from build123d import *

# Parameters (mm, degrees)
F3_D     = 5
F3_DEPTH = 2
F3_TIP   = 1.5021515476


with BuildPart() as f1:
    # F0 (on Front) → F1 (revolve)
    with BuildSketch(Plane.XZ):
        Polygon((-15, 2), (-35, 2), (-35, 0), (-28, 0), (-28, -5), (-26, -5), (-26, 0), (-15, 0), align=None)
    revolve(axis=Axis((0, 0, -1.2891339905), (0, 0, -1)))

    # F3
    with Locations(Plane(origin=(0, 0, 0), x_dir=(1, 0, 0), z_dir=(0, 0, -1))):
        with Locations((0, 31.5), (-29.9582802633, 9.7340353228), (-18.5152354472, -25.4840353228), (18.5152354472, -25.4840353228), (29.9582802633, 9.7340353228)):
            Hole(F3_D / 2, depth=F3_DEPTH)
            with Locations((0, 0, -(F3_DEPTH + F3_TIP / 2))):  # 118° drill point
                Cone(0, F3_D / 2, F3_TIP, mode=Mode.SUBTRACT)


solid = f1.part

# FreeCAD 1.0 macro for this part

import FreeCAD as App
import Part
import Sketcher
from FreeCAD import Vector
Q = App.Units.Quantity

doc = App.newDocument("Part")
body = doc.addObject("PartDesign::Body", "Body")

sketch1 = doc.addObject("Sketcher::SketchObject", "Sketch")
body.addObject(sketch1)
sketch1.AttachmentSupport = (doc.XZ_Plane, [""])
sketch1.MapMode = "FlatFace"
sketch1.addGeometry([
    Part.LineSegment(Vector(-15, 2, 0), Vector(-35, 2, 0)),
    Part.LineSegment(Vector(-35, 2, 0), Vector(-35, 0, 0)),
    Part.LineSegment(Vector(-35, 0, 0), Vector(-28, 0, 0)),
    Part.LineSegment(Vector(-28, 0, 0), Vector(-28, -5, 0)),
    Part.LineSegment(Vector(-28, -5, 0), Vector(-26, -5, 0)),
    Part.LineSegment(Vector(-26, -5, 0), Vector(-26, 0, 0)),
    Part.LineSegment(Vector(-26, 0, 0), Vector(-15, 0, 0)),
    Part.LineSegment(Vector(-15, 0, 0), Vector(-15, 2, 0)),
], False)
sketch1.addConstraint([
    Sketcher.Constraint("Coincident", 0, 2, 1, 1),
    Sketcher.Constraint("Coincident", 1, 2, 2, 1),
    Sketcher.Constraint("Coincident", 2, 2, 3, 1),
    Sketcher.Constraint("Coincident", 3, 2, 4, 1),
    Sketcher.Constraint("Coincident", 4, 2, 5, 1),
    Sketcher.Constraint("Coincident", 5, 2, 6, 1),
    Sketcher.Constraint("Coincident", 6, 2, 7, 1),
    Sketcher.Constraint("Coincident", 7, 2, 0, 1),
    Sketcher.Constraint("Horizontal", 0),
    Sketcher.Constraint("Vertical", 1),
    Sketcher.Constraint("Horizontal", 2),
    Sketcher.Constraint("Vertical", 3),
    Sketcher.Constraint("Horizontal", 4),
    Sketcher.Constraint("Vertical", 5),
    Sketcher.Constraint("Horizontal", 6),
    Sketcher.Constraint("Vertical", 7),
    Sketcher.Constraint("PointOnObject", 1, 2, -1),
    Sketcher.Constraint("PointOnObject", 5, 2, -1),
    Sketcher.Constraint("Equal", 4, 1),
    Sketcher.Constraint("DistanceX", 0, 2, 0, 1, Q("20 mm")),
    Sketcher.Constraint("DistanceX", 2, 1, 2, 2, Q("7 mm")),
    Sketcher.Constraint("DistanceX", 4, 1, 4, 2, Q("2 mm")),
    Sketcher.Constraint("DistanceY", 3, 2, 3, 1, Q("5 mm")),
    Sketcher.Constraint("DistanceX", 0, 2, -1, 1, Q("35 mm")),
])
revolution = doc.addObject("PartDesign::Revolution", "Revolution")
body.addObject(revolution)
revolution.Profile = sketch1
revolution.ReferenceAxis = (sketch1, ["V_Axis"])
revolution.Angle = 360

sketch2 = doc.addObject("Sketcher::SketchObject", "Sketch001")
body.addObject(sketch2)
sketch2.AttachmentSupport = (doc.XY_Plane, [""])
sketch2.MapMode = "FlatFace"
sketch2.addGeometry([
    Part.Circle(Vector(0, -31.5, 0), Vector(0, 0, 1), 2.5),
    Part.Circle(Vector(-30, -9.7, 0), Vector(0, 0, 1), 2.5),
    Part.Circle(Vector(-18.5, 25.5, 0), Vector(0, 0, 1), 2.5),
    Part.Circle(Vector(18.5, 25.5, 0), Vector(0, 0, 1), 2.5),
    Part.Circle(Vector(30, -9.7, 0), Vector(0, 0, 1), 2.5),
], False)
sketch2.addConstraint([
    Sketcher.Constraint("Equal", 0, 1),
    Sketcher.Constraint("Equal", 1, 2),
    Sketcher.Constraint("Equal", 2, 3),
    Sketcher.Constraint("Equal", 3, 4),
    Sketcher.Constraint("Symmetric", 2, 3, 3, 3, -2),
    Sketcher.Constraint("Symmetric", 1, 3, 4, 3, -2),
    Sketcher.Constraint("PointOnObject", 0, 3, -2),
    Sketcher.Constraint("Diameter", 0, Q("5 mm")),
    Sketcher.Constraint("DistanceY", 0, 3, -1, 1, Q("31.5 mm")),
    Sketcher.Constraint("DistanceX", 1, 3, -1, 1, Q("29.95828 mm")),
    Sketcher.Constraint("DistanceY", 1, 3, 2, 3, Q("35.218071 mm")),
    Sketcher.Constraint("DistanceX", 2, 3, 3, 3, Q("37.030471 mm")),
    Sketcher.Constraint("DistanceY", 1, 3, -1, 1, Q("9.734035 mm")),
])
doc.recompute()
hole = doc.addObject("PartDesign::Hole", "Hole")
body.addObject(hole)
hole.Profile = sketch2
hole.ThreadType = "None"
hole.Diameter = 5
hole.DepthType = "Dimension"
hole.Depth = 2
hole.DrillPoint = "Angled"
hole.DrillPointAngle = 118
hole.Reversed = True

doc.recompute()
